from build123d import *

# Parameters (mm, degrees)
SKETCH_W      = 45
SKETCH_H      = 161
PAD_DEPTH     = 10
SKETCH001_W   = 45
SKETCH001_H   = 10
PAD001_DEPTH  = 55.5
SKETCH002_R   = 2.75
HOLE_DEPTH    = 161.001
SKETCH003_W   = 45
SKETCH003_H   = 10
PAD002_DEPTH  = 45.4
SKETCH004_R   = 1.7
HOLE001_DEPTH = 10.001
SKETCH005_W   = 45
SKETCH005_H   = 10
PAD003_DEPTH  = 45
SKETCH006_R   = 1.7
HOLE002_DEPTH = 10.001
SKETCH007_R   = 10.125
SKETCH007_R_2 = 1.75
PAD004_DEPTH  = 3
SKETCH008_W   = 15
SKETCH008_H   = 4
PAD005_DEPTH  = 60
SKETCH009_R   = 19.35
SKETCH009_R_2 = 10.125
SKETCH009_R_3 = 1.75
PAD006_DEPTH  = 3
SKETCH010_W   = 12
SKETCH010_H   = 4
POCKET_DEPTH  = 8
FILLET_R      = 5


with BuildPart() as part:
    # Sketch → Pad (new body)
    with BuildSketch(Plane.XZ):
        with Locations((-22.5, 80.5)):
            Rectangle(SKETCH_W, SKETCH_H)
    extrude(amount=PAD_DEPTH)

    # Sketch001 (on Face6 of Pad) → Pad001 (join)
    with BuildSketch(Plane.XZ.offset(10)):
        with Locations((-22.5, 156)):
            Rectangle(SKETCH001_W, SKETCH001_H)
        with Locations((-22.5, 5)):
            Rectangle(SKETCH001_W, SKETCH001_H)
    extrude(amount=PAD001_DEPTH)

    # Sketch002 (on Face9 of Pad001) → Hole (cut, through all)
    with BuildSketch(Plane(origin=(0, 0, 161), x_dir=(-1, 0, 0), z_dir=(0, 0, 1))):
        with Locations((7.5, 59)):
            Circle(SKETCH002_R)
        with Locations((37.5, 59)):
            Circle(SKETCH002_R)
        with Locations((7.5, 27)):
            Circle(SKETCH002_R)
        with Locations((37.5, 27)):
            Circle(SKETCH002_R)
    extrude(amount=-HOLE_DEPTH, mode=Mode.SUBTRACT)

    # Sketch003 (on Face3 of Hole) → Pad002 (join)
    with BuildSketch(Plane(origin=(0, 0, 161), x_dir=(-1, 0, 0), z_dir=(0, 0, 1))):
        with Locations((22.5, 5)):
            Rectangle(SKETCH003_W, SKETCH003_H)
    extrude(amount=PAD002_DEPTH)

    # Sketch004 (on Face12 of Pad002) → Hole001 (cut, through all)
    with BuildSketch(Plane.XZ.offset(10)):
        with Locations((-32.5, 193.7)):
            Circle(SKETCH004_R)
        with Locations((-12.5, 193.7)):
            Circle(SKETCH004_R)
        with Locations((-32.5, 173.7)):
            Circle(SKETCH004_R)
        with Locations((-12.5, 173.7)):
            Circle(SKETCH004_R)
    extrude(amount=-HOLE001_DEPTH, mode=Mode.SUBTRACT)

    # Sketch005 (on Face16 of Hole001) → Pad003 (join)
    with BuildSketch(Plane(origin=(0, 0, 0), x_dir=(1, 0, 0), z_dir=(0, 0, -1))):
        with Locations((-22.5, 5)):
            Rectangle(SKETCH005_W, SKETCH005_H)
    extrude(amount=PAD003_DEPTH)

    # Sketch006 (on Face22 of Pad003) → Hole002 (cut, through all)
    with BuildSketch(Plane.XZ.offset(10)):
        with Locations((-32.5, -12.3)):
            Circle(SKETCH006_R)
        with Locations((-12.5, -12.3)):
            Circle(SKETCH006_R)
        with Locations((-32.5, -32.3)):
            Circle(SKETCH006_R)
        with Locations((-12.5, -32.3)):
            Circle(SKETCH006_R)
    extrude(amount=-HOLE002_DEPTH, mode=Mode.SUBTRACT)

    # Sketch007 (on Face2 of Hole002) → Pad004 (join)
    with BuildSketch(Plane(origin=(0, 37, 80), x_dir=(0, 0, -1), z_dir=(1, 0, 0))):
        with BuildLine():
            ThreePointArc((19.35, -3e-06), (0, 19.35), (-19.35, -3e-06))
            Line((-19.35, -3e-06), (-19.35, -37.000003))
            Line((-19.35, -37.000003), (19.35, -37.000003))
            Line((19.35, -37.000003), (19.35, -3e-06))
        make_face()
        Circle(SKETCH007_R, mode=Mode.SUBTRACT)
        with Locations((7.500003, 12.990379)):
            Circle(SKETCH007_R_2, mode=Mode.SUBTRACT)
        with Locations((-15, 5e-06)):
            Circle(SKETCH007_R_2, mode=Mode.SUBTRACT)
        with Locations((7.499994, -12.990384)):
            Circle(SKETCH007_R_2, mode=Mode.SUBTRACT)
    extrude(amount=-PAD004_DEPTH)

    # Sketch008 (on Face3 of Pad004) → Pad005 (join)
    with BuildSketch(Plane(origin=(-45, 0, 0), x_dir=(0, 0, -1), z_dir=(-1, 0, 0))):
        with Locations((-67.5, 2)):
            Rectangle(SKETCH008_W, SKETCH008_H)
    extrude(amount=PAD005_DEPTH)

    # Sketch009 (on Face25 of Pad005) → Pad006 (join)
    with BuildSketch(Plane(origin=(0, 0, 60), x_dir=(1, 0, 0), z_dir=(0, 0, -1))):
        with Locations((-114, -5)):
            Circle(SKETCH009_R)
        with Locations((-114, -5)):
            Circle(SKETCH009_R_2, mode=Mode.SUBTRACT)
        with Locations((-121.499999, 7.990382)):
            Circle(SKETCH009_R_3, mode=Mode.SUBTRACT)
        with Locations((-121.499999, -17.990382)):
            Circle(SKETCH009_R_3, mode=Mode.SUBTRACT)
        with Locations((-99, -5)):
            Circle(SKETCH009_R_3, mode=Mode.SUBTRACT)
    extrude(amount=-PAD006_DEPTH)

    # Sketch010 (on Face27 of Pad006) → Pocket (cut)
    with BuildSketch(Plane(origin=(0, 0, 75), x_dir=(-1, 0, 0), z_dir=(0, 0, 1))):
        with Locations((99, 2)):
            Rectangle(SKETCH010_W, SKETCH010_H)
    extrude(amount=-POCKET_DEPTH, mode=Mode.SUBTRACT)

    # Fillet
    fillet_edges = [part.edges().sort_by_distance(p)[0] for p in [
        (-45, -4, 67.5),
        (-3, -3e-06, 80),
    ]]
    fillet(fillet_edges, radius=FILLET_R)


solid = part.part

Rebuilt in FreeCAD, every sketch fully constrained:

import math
import FreeCAD as App
import Part
import Sketcher

V = App.Vector


def edges_at(feature, points):
    """Names of the edges that pass closest to the given points."""
    edges = feature.Shape.Edges
    near = lambda p: min(range(len(edges)), key=lambda i: edges[i].distToShape(Part.Vertex(*p))[0])
    return sorted({f"Edge{near(p) + 1}" for p in points})


def add_polygon(sketch, points):
    """Adds a closed chain of lines whose ends are joined by coincident constraints."""
    first, n = sketch.GeometryCount, len(points)
    for a, b in zip(points, points[1:] + points[:1]):
        sketch.addGeometry(Part.LineSegment(App.Vector(*a, 0), App.Vector(*b, 0)), False)
    for i in range(n):
        sketch.addConstraint(Sketcher.Constraint("Coincident", first + i, 2, first + (i + 1) % n, 1))

doc = App.newDocument("Part")
body = doc.addObject("PartDesign::Body", "Body")

sketch1 = body.newObject("Sketcher::SketchObject", "Sketch")
sketch1.AttachmentSupport = (doc.getObject("XZ_Plane"), [""])
sketch1.MapMode = "FlatFace"
add_polygon(sketch1, [(-45, 161), (-45, 0), (0, 0), (0, 161)])
sketch1.addConstraint(Sketcher.Constraint("Vertical", 0))
sketch1.addConstraint(Sketcher.Constraint("Horizontal", 1))
sketch1.addConstraint(Sketcher.Constraint("Vertical", 2))
sketch1.addConstraint(Sketcher.Constraint("Horizontal", 3))
sketch1.addConstraint(Sketcher.Constraint("Coincident", 1, 2, -1, 1))
sketch1.addConstraint(Sketcher.Constraint("DistanceX", 1, 1, 1, 2, 45.0))
sketch1.addConstraint(Sketcher.Constraint("DistanceY", 0, 2, 0, 1, 161.0))
pad1 = body.newObject("PartDesign::Pad", "Pad")
pad1.Profile = sketch1
pad1.Length = 10

sketch2 = body.newObject("Sketcher::SketchObject", "Sketch001")
sketch2.AttachmentSupport = (doc.getObject("XZ_Plane"), [""])
sketch2.MapMode = "FlatFace"
sketch2.AttachmentOffset = App.Placement(V(0, 0, 10), App.Rotation())
add_polygon(sketch2, [(-45, 161), (-45, 151), (0, 151), (0, 161)])
add_polygon(sketch2, [(-45, 10), (-45, 0), (0, 0), (0, 10)])
sketch2.addConstraint(Sketcher.Constraint("Vertical", 0))
sketch2.addConstraint(Sketcher.Constraint("Horizontal", 1))
sketch2.addConstraint(Sketcher.Constraint("Vertical", 2))
sketch2.addConstraint(Sketcher.Constraint("Horizontal", 3))
sketch2.addConstraint(Sketcher.Constraint("Vertical", 4))
sketch2.addConstraint(Sketcher.Constraint("Horizontal", 5))
sketch2.addConstraint(Sketcher.Constraint("Vertical", 6))
sketch2.addConstraint(Sketcher.Constraint("Horizontal", 7))
sketch2.addConstraint(Sketcher.Constraint("Coincident", 5, 2, -1, 1))
sketch2.addConstraint(Sketcher.Constraint("PointOnObject", 1, 2, -2))
sketch2.addConstraint(Sketcher.Constraint("Vertical", 3, 2, 4, 2))
sketch2.addConstraint(Sketcher.Constraint("Equal", 2, 4))
sketch2.addConstraint(Sketcher.Constraint("DistanceX", 1, 1, 1, 2, 45.0))
sketch2.addConstraint(Sketcher.Constraint("DistanceY", 0, 2, 0, 1, 10.0))
sketch2.addConstraint(Sketcher.Constraint("DistanceY", -1, 1, 0, 2, 151.0))
pad2 = body.newObject("PartDesign::Pad", "Pad001")
pad2.Profile = sketch2
pad2.Length = 55.5

sketch3 = body.newObject("Sketcher::SketchObject", "Sketch002")
sketch3.AttachmentSupport = (doc.getObject("XY_Plane"), [""])
sketch3.MapMode = "FlatFace"
sketch3.AttachmentOffset = App.Placement(V(0, 0, 161), App.Rotation())
sketch3.addGeometry(Part.Circle(V(-7.5, -59, 0), V(0, 0, 1), 2.8), False)
sketch3.addGeometry(Part.Circle(V(-37.5, -59, 0), V(0, 0, 1), 2.8), False)
sketch3.addGeometry(Part.Circle(V(-7.5, -27, 0), V(0, 0, 1), 2.8), False)
sketch3.addGeometry(Part.Circle(V(-37.5, -27, 0), V(0, 0, 1), 2.8), False)
sketch3.addConstraint(Sketcher.Constraint("Equal", 0, 1))
sketch3.addConstraint(Sketcher.Constraint("Equal", 1, 2))
sketch3.addConstraint(Sketcher.Constraint("Equal", 2, 3))
sketch3.addConstraint(Sketcher.Constraint("Horizontal", 0, 3, 1, 3))
sketch3.addConstraint(Sketcher.Constraint("Horizontal", 2, 3, 3, 3))
sketch3.addConstraint(Sketcher.Constraint("Vertical", 0, 3, 2, 3))
sketch3.addConstraint(Sketcher.Constraint("Vertical", 1, 3, 3, 3))
sketch3.addConstraint(Sketcher.Constraint("Diameter", 0, 5.5))
sketch3.addConstraint(Sketcher.Constraint("DistanceY", 0, 3, -1, 1, 59.0))
sketch3.addConstraint(Sketcher.Constraint("DistanceY", 2, 3, -1, 1, 27.0))
sketch3.addConstraint(Sketcher.Constraint("DistanceX", 1, 3, 0, 3, 30.0))
sketch3.addConstraint(Sketcher.Constraint("DistanceX", 0, 3, -1, 1, 7.5))
pocket1 = body.newObject("PartDesign::Pocket", "Pocket")
pocket1.Profile = sketch3
pocket1.Type = "ThroughAll"

sketch4 = body.newObject("Sketcher::SketchObject", "Sketch003")
sketch4.AttachmentSupport = (doc.getObject("XY_Plane"), [""])
sketch4.MapMode = "FlatFace"
sketch4.AttachmentOffset = App.Placement(V(0, 0, 161), App.Rotation())
add_polygon(sketch4, [(0, -10), (0, 0), (-45, 0), (-45, -10)])
sketch4.addConstraint(Sketcher.Constraint("Vertical", 0))
sketch4.addConstraint(Sketcher.Constraint("Horizontal", 1))
sketch4.addConstraint(Sketcher.Constraint("Vertical", 2))
sketch4.addConstraint(Sketcher.Constraint("Horizontal", 3))
sketch4.addConstraint(Sketcher.Constraint("Coincident", 0, 2, -1, 1))
sketch4.addConstraint(Sketcher.Constraint("DistanceX", 1, 2, 1, 1, 45.0))
sketch4.addConstraint(Sketcher.Constraint("DistanceY", 0, 1, 0, 2, 10.0))
pad3 = body.newObject("PartDesign::Pad", "Pad002")
pad3.Profile = sketch4
pad3.Length = 45.4

sketch5 = body.newObject("Sketcher::SketchObject", "Sketch004")
sketch5.AttachmentSupport = (doc.getObject("XZ_Plane"), [""])
sketch5.MapMode = "FlatFace"
sketch5.AttachmentOffset = App.Placement(V(0, 0, 10), App.Rotation())
sketch5.addGeometry(Part.Circle(V(-32.5, 193.7, 0), V(0, 0, 1), 1.7), False)
sketch5.addGeometry(Part.Circle(V(-12.5, 193.7, 0), V(0, 0, 1), 1.7), False)
sketch5.addGeometry(Part.Circle(V(-32.5, 173.7, 0), V(0, 0, 1), 1.7), False)
sketch5.addGeometry(Part.Circle(V(-12.5, 173.7, 0), V(0, 0, 1), 1.7), False)
sketch5.addConstraint(Sketcher.Constraint("Equal", 0, 1))
sketch5.addConstraint(Sketcher.Constraint("Equal", 1, 2))
sketch5.addConstraint(Sketcher.Constraint("Equal", 2, 3))
sketch5.addConstraint(Sketcher.Constraint("Horizontal", 0, 3, 1, 3))
sketch5.addConstraint(Sketcher.Constraint("Horizontal", 2, 3, 3, 3))
sketch5.addConstraint(Sketcher.Constraint("Vertical", 0, 3, 2, 3))
sketch5.addConstraint(Sketcher.Constraint("Vertical", 1, 3, 3, 3))
sketch5.addConstraint(Sketcher.Constraint("Diameter", 0, 3.4))
sketch5.addConstraint(Sketcher.Constraint("DistanceX", 0, 3, 1, 3, 20.0))
sketch5.addConstraint(Sketcher.Constraint("DistanceY", 2, 3, 0, 3, 20.0))
sketch5.addConstraint(Sketcher.Constraint("DistanceX", 0, 3, -1, 1, 32.5))
sketch5.addConstraint(Sketcher.Constraint("DistanceY", -1, 1, 0, 3, 193.7))
pocket2 = body.newObject("PartDesign::Pocket", "Pocket001")
pocket2.Profile = sketch5
pocket2.Type = "ThroughAll"

sketch6 = body.newObject("Sketcher::SketchObject", "Sketch005")
sketch6.AttachmentSupport = (doc.getObject("XY_Plane"), [""])
sketch6.MapMode = "FlatFace"
add_polygon(sketch6, [(-45, -10), (-45, 0), (0, 0), (0, -10)])
sketch6.addConstraint(Sketcher.Constraint("Vertical", 0))
sketch6.addConstraint(Sketcher.Constraint("Horizontal", 1))
sketch6.addConstraint(Sketcher.Constraint("Vertical", 2))
sketch6.addConstraint(Sketcher.Constraint("Horizontal", 3))
sketch6.addConstraint(Sketcher.Constraint("Coincident", 1, 2, -1, 1))
sketch6.addConstraint(Sketcher.Constraint("DistanceX", 1, 1, 1, 2, 45.0))
sketch6.addConstraint(Sketcher.Constraint("DistanceY", 0, 1, 0, 2, 10.0))
pad4 = body.newObject("PartDesign::Pad", "Pad003")
pad4.Profile = sketch6
pad4.Length = 45
pad4.Reversed = True

sketch7 = body.newObject("Sketcher::SketchObject", "Sketch006")
sketch7.AttachmentSupport = (doc.getObject("XZ_Plane"), [""])
sketch7.MapMode = "FlatFace"
sketch7.AttachmentOffset = App.Placement(V(0, 0, 10), App.Rotation())
sketch7.addGeometry(Part.Circle(V(-32.5, -12.3, 0), V(0, 0, 1), 1.7), False)
sketch7.addGeometry(Part.Circle(V(-12.5, -12.3, 0), V(0, 0, 1), 1.7), False)
sketch7.addGeometry(Part.Circle(V(-32.5, -32.3, 0), V(0, 0, 1), 1.7), False)
sketch7.addGeometry(Part.Circle(V(-12.5, -32.3, 0), V(0, 0, 1), 1.7), False)
sketch7.addConstraint(Sketcher.Constraint("Equal", 0, 1))
sketch7.addConstraint(Sketcher.Constraint("Equal", 1, 2))
sketch7.addConstraint(Sketcher.Constraint("Equal", 2, 3))
sketch7.addConstraint(Sketcher.Constraint("Horizontal", 0, 3, 1, 3))
sketch7.addConstraint(Sketcher.Constraint("Horizontal", 2, 3, 3, 3))
sketch7.addConstraint(Sketcher.Constraint("Vertical", 0, 3, 2, 3))
sketch7.addConstraint(Sketcher.Constraint("Vertical", 1, 3, 3, 3))
sketch7.addConstraint(Sketcher.Constraint("Diameter", 0, 3.4))
sketch7.addConstraint(Sketcher.Constraint("DistanceX", 0, 3, 1, 3, 20.0))
sketch7.addConstraint(Sketcher.Constraint("DistanceY", 2, 3, 0, 3, 20.0))
sketch7.addConstraint(Sketcher.Constraint("DistanceX", 0, 3, -1, 1, 32.5))
sketch7.addConstraint(Sketcher.Constraint("DistanceY", 0, 3, -1, 1, 12.3))
pocket3 = body.newObject("PartDesign::Pocket", "Pocket002")
pocket3.Profile = sketch7
pocket3.Type = "ThroughAll"

sketch8 = body.newObject("Sketcher::SketchObject", "Sketch007")
sketch8.AttachmentSupport = (doc.getObject("YZ_Plane"), [""])
sketch8.MapMode = "FlatFace"
sketch8.addGeometry(Part.ArcOfCircle(Part.Circle(V(37, 80, 0), V(0, 0, 1), 19.4), math.radians(-90), math.radians(90)), False)
sketch8.addGeometry(Part.LineSegment(V(37, 99.3, 0), V(0, 99.3, 0)), False)
sketch8.addGeometry(Part.LineSegment(V(0, 99.3, 0), V(0, 60.6, 0)), False)
sketch8.addGeometry(Part.LineSegment(V(0, 60.6, 0), V(37, 60.6, 0)), False)
sketch8.addGeometry(Part.Circle(V(24, 72.5, 0), V(0, 0, 1), 1.8), False)
sketch8.addGeometry(Part.Circle(V(37, 95, 0), V(0, 0, 1), 1.8), False)
sketch8.addGeometry(Part.Circle(V(37, 80, 0), V(0, 0, 1), 10.1), False)
sketch8.addGeometry(Part.Circle(V(50, 72.5, 0), V(0, 0, 1), 1.8), False)
sketch8.addConstraint(Sketcher.Constraint("Tangent", 0, 2, 1, 1))
sketch8.addConstraint(Sketcher.Constraint("Coincident", 1, 2, 2, 1))
sketch8.addConstraint(Sketcher.Constraint("Coincident", 2, 2, 3, 1))
sketch8.addConstraint(Sketcher.Constraint("Tangent", 3, 2, 0, 1))
sketch8.addConstraint(Sketcher.Constraint("Horizontal", 1))
sketch8.addConstraint(Sketcher.Constraint("Vertical", 2))
sketch8.addConstraint(Sketcher.Constraint("Horizontal", 3))
sketch8.addConstraint(Sketcher.Constraint("Coincident", 6, 3, 0, 3))
sketch8.addConstraint(Sketcher.Constraint("Equal", 4, 5))
sketch8.addConstraint(Sketcher.Constraint("Equal", 5, 7))
sketch8.addConstraint(Sketcher.Constraint("Diameter", 4, 3.5))
sketch8.addConstraint(Sketcher.Constraint("Diameter", 6, 20.25))
sketch8.addConstraint(Sketcher.Constraint("DistanceX", 1, 2, 1, 1, 37.0))
sketch8.addConstraint(Sketcher.Constraint("Radius", 0, 19.35))
sketch8.addConstraint(Sketcher.Constraint("DistanceX", -1, 1, 0, 3, 37.0))
sketch8.addConstraint(Sketcher.Constraint("DistanceY", -1, 1, 0, 3, 80.0))
sketch8.addConstraint(Sketcher.Constraint("DistanceY", -1, 1, 5, 3, 95.0))
sketch8.addConstraint(Sketcher.Constraint("DistanceX", -1, 1, 7, 3, 49.990379))
sketch8.addConstraint(Sketcher.Constraint("DistanceX", 4, 3, 5, 3, 12.990389))
sketch8.addConstraint(Sketcher.Constraint("DistanceX", 4, 3, 0, 2, 12.990381))
sketch8.addConstraint(Sketcher.Constraint("DistanceY", -1, 1, 4, 3, 72.500006))
sketch8.addConstraint(Sketcher.Constraint("DistanceY", -1, 1, 7, 3, 72.499997))
pad5 = body.newObject("PartDesign::Pad", "Pad004")
pad5.Profile = sketch8
pad5.Length = 3
pad5.Reversed = True

sketch9 = body.newObject("Sketcher::SketchObject", "Sketch008")
sketch9.AttachmentSupport = (doc.getObject("YZ_Plane"), [""])
sketch9.MapMode = "FlatFace"
sketch9.AttachmentOffset = App.Placement(V(0, 0, -45), App.Rotation())
add_polygon(sketch9, [(-4, 75), (0, 75), (0, 60), (-4, 60)])
sketch9.addConstraint(Sketcher.Constraint("Horizontal", 0))
sketch9.addConstraint(Sketcher.Constraint("Vertical", 1))
sketch9.addConstraint(Sketcher.Constraint("Horizontal", 2))
sketch9.addConstraint(Sketcher.Constraint("Vertical", 3))
sketch9.addConstraint(Sketcher.Constraint("PointOnObject", 0, 2, -2))
sketch9.addConstraint(Sketcher.Constraint("DistanceX", 0, 1, 0, 2, 4.0))
sketch9.addConstraint(Sketcher.Constraint("DistanceY", 1, 2, 1, 1, 15.0))
sketch9.addConstraint(Sketcher.Constraint("DistanceY", -1, 1, 0, 2, 75.0))
pad6 = body.newObject("PartDesign::Pad", "Pad005")
pad6.Profile = sketch9
pad6.Length = 60
pad6.Reversed = True

sketch10 = body.newObject("Sketcher::SketchObject", "Sketch009")
sketch10.AttachmentSupport = (doc.getObject("XY_Plane"), [""])
sketch10.MapMode = "FlatFace"
sketch10.AttachmentOffset = App.Placement(V(0, 0, 60), App.Rotation())
sketch10.addGeometry(Part.Circle(V(-114, 5, 0), V(0, 0, 1), 19.4), False)
sketch10.addGeometry(Part.Circle(V(-121.5, 18, 0), V(0, 0, 1), 1.8), False)
sketch10.addGeometry(Part.Circle(V(-114, 5, 0), V(0, 0, 1), 10.1), False)
sketch10.addGeometry(Part.Circle(V(-121.5, -8, 0), V(0, 0, 1), 1.8), False)
sketch10.addGeometry(Part.Circle(V(-99, 5, 0), V(0, 0, 1), 1.8), False)
sketch10.addConstraint(Sketcher.Constraint("Coincident", 2, 3, 0, 3))
sketch10.addConstraint(Sketcher.Constraint("Equal", 1, 3))
sketch10.addConstraint(Sketcher.Constraint("Equal", 3, 4))
sketch10.addConstraint(Sketcher.Constraint("Horizontal", 2, 3, 4, 3))
sketch10.addConstraint(Sketcher.Constraint("Vertical", 1, 3, 3, 3))
sketch10.addConstraint(Sketcher.Constraint("Diameter", 0, 38.7))
sketch10.addConstraint(Sketcher.Constraint("Diameter", 1, 3.5))
sketch10.addConstraint(Sketcher.Constraint("Diameter", 2, 20.25))
sketch10.addConstraint(Sketcher.Constraint("DistanceX", 0, 3, -1, 1, 114.0))
sketch10.addConstraint(Sketcher.Constraint("DistanceY", -1, 1, 0, 3, 5.0))
sketch10.addConstraint(Sketcher.Constraint("DistanceX", 4, 3, -1, 1, 99.0))
sketch10.addConstraint(Sketcher.Constraint("DistanceX", 1, 3, -1, 1, 121.499999))
sketch10.addConstraint(Sketcher.Constraint("DistanceY", -1, 1, 1, 3, 17.990382))
sketch10.addConstraint(Sketcher.Constraint("DistanceY", 3, 3, -1, 1, 7.990382))
pad7 = body.newObject("PartDesign::Pad", "Pad006")
pad7.Profile = sketch10
pad7.Length = 3

sketch11 = body.newObject("Sketcher::SketchObject", "Sketch010")
sketch11.AttachmentSupport = (doc.getObject("XY_Plane"), [""])
sketch11.MapMode = "FlatFace"
sketch11.AttachmentOffset = App.Placement(V(0, 0, 75), App.Rotation())
add_polygon(sketch11, [(-93, -4), (-93, 0), (-105, 0), (-105, -4)])
sketch11.addConstraint(Sketcher.Constraint("Vertical", 0))
sketch11.addConstraint(Sketcher.Constraint("Horizontal", 1))
sketch11.addConstraint(Sketcher.Constraint("Vertical", 2))
sketch11.addConstraint(Sketcher.Constraint("Horizontal", 3))
sketch11.addConstraint(Sketcher.Constraint("PointOnObject", 0, 2, -1))
sketch11.addConstraint(Sketcher.Constraint("DistanceX", 1, 2, 1, 1, 12.0))
sketch11.addConstraint(Sketcher.Constraint("DistanceY", 0, 1, 0, 2, 4.0))
sketch11.addConstraint(Sketcher.Constraint("DistanceX", 0, 2, -1, 1, 93.0))
pocket4 = body.newObject("PartDesign::Pocket", "Pocket003")
pocket4.Profile = sketch11
pocket4.Length = 8
doc.recompute()

fillet = body.newObject("PartDesign::Fillet", "Fillet")
fillet.Base = (pocket4, edges_at(pocket4, [(-45, -4, 67.5), (-3, 0, 80)]))
fillet.Radius = 5

doc.recompute()
